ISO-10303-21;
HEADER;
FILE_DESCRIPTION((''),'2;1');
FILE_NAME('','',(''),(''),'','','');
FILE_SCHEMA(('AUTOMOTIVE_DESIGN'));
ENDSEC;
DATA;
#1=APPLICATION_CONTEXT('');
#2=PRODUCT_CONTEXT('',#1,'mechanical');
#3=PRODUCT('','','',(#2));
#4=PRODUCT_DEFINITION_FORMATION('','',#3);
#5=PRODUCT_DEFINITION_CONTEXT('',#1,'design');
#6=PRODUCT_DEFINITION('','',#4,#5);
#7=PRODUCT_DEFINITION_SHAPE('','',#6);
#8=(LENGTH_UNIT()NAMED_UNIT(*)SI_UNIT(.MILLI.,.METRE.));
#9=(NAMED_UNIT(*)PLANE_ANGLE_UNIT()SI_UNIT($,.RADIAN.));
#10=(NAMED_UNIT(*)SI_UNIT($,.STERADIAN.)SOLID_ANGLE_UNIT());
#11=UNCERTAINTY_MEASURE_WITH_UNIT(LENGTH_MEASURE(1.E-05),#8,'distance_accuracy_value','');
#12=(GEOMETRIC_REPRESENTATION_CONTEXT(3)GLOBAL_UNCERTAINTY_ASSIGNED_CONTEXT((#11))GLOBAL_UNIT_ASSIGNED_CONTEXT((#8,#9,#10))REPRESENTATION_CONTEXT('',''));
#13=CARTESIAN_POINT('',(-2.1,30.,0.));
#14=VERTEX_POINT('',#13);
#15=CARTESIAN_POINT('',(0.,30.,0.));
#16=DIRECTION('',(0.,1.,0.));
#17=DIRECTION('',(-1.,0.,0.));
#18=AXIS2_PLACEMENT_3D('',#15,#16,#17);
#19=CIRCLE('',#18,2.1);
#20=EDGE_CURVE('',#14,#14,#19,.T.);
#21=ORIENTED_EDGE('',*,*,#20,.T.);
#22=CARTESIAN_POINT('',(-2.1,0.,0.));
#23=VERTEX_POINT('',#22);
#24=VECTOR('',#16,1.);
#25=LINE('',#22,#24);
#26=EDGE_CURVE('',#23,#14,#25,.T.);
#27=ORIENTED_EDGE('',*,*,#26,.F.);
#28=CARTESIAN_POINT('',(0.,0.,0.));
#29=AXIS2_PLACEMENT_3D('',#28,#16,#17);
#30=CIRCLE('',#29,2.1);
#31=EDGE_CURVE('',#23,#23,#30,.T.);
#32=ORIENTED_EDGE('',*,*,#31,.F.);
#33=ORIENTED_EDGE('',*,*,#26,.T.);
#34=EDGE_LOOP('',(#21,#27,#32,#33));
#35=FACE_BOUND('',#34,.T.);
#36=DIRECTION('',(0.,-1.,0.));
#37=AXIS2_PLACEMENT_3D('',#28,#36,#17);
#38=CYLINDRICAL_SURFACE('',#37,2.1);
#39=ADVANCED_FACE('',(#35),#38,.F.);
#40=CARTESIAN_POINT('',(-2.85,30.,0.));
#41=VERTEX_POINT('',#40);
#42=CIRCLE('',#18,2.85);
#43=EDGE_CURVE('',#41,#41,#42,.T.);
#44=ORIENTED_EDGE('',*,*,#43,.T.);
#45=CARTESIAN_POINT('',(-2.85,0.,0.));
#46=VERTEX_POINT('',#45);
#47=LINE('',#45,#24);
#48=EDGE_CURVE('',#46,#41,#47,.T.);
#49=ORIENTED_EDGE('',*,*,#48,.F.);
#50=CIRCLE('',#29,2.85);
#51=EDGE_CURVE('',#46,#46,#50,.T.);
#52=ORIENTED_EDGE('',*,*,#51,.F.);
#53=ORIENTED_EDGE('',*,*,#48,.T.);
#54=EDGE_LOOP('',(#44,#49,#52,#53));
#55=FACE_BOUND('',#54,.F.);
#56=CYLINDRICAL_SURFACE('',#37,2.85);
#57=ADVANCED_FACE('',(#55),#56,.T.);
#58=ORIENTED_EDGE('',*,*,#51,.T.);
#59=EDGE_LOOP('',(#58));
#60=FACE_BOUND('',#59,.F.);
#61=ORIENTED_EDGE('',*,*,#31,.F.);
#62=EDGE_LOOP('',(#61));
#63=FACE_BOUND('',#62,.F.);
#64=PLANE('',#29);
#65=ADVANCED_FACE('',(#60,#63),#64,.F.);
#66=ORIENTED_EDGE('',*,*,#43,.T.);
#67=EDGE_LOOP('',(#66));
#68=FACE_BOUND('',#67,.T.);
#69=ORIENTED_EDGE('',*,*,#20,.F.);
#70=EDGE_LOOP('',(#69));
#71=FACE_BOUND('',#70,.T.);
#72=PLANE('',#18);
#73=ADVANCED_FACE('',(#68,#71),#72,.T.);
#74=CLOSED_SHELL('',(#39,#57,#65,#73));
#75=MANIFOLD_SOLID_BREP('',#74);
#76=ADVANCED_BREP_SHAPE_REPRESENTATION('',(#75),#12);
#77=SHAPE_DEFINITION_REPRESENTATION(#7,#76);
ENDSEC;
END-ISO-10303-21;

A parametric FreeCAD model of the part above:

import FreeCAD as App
import Part
import Sketcher
from FreeCAD import Vector

doc = App.newDocument("Part")
body = doc.addObject("PartDesign::Body", "Body")

sketch1 = body.newObject("Sketcher::SketchObject", "Sketch")
sketch1.AttachmentSupport = (doc.getObject("XZ_Plane"), [""])
sketch1.MapMode = "FlatFace"
sketch1.addGeometry([
    Part.Circle(Vector(0, 0, 0), Vector(0, 0, 1), 2.9),
    Part.Circle(Vector(0, 0, 0), Vector(0, 0, 1), 2.1),
], False)
sketch1.addConstraint([
    Sketcher.Constraint("Coincident", 0, 3, -1, 1),
    Sketcher.Constraint("Coincident", 1, 3, -1, 1),
    Sketcher.Constraint("Diameter", 0, 5.7),
    Sketcher.Constraint("Diameter", 1, 4.2),
])
pad1 = body.newObject("PartDesign::Pad", "Pad")
pad1.Profile = sketch1
pad1.Length = 30
pad1.Reversed = True

doc.recompute()
